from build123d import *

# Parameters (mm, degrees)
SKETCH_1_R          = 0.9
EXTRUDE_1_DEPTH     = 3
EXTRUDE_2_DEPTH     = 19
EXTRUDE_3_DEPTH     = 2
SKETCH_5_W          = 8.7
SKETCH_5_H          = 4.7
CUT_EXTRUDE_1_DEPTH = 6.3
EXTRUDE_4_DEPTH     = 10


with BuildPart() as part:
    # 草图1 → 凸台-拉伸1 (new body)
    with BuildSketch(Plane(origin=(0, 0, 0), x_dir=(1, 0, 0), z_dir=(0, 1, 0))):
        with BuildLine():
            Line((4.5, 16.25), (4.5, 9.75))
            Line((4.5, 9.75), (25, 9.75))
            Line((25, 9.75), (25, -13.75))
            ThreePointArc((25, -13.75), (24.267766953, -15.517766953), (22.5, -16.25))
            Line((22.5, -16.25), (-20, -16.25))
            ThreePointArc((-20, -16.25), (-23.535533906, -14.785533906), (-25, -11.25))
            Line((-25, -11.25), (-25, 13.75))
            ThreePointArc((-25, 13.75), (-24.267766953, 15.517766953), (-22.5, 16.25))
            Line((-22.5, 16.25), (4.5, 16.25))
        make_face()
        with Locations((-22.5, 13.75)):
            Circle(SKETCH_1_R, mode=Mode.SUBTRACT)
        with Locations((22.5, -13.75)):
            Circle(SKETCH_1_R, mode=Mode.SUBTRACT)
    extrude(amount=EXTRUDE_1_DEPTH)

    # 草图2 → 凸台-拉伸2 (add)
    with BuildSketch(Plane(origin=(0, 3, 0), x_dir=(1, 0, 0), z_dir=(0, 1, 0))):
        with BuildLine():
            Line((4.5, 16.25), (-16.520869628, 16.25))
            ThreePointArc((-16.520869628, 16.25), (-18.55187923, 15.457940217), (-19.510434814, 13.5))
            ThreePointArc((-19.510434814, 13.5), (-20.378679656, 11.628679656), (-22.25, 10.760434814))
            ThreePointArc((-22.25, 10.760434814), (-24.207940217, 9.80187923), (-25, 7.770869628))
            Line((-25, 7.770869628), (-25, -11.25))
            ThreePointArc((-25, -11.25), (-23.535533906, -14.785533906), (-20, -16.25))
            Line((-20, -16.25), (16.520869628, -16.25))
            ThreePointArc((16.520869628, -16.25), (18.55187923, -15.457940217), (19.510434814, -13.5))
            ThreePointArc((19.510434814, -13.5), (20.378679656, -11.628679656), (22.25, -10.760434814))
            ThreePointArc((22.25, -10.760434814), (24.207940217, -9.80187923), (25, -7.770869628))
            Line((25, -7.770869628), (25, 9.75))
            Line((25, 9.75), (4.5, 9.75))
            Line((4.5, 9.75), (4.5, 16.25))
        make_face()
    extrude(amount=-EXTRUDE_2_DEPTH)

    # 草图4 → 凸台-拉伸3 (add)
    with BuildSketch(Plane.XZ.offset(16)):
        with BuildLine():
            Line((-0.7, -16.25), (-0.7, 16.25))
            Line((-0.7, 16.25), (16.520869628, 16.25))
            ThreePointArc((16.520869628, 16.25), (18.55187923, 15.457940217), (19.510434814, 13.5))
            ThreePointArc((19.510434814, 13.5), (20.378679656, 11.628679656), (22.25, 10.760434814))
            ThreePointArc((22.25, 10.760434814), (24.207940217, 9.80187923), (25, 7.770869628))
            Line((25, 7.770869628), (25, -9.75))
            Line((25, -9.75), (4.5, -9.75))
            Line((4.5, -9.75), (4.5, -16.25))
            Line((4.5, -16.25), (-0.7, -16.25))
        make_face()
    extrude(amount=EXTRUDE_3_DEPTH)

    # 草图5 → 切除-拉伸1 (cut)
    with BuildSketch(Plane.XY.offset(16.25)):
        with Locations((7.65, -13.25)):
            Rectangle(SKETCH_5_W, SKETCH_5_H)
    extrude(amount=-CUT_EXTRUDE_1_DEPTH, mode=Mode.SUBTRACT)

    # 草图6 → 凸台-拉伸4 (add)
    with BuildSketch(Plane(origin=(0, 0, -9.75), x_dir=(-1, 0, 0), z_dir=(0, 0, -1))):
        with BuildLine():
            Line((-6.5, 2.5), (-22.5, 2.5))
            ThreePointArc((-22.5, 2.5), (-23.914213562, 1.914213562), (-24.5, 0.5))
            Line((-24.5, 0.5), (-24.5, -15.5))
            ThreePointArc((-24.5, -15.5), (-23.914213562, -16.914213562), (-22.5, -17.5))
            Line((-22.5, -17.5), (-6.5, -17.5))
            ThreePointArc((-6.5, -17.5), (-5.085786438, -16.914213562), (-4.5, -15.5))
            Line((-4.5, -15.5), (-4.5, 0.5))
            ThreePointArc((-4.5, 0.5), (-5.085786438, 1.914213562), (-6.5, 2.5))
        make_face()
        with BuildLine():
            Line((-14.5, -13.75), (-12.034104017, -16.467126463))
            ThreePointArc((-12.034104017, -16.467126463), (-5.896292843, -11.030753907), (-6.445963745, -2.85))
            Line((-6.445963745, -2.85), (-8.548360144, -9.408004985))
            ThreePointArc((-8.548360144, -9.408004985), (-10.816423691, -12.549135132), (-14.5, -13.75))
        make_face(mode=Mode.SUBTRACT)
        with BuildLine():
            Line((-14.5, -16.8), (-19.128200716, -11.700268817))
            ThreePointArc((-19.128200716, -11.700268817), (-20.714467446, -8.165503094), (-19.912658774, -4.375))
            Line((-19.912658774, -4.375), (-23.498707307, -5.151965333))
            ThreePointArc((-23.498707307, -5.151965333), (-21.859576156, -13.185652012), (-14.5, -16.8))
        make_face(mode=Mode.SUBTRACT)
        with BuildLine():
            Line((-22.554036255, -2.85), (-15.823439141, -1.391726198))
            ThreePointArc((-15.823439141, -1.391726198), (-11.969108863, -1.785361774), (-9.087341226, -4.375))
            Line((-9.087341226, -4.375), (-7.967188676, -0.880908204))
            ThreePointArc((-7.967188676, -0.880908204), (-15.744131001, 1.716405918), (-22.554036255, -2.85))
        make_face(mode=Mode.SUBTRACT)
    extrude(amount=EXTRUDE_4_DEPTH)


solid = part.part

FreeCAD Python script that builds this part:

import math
import FreeCAD as App
import Part
import Sketcher
from FreeCAD import Vector
Q = App.Units.Quantity


def add_polygon(sketch, points):
    """Adds a closed chain of lines whose ends are joined by coincident constraints."""
    first, n = sketch.GeometryCount, len(points)
    for a, b in zip(points, points[1:] + points[:1]):
        sketch.addGeometry(Part.LineSegment(App.Vector(*a, 0), App.Vector(*b, 0)), False)
    for i in range(n):
        sketch.addConstraint(Sketcher.Constraint("Coincident", first + i, 2, first + (i + 1) % n, 1))

doc = App.newDocument("Part")
body = doc.addObject("PartDesign::Body", "Body")

sketch1 = doc.addObject("Sketcher::SketchObject", "Sketch")
body.addObject(sketch1)
sketch1.AttachmentSupport = (doc.XZ_Plane, [""])
sketch1.MapMode = "FlatFace"
sketch1.addGeometry([
    Part.LineSegment(Vector(4.5, -9.8, 0), Vector(4.5, -16.2, 0)),
    Part.LineSegment(Vector(4.5, -16.2, 0), Vector(-22.5, -16.2, 0)),
    Part.ArcOfCircle(Part.Circle(Vector(-22.5, -13.8, 0), Vector(0, 0, 1), 2.5), math.radians(180), math.radians(270)),
    Part.LineSegment(Vector(-25, -13.8, 0), Vector(-25, 11.2, 0)),
    Part.ArcOfCircle(Part.Circle(Vector(-20, 11.2, 0), Vector(0, 0, 1), 5), math.radians(90), math.radians(180)),
    Part.LineSegment(Vector(-20, 16.2, 0), Vector(22.5, 16.2, 0)),
    Part.ArcOfCircle(Part.Circle(Vector(22.5, 13.8, 0), Vector(0, 0, 1), 2.5), math.radians(0), math.radians(90)),
    Part.LineSegment(Vector(25, 13.8, 0), Vector(25, -9.8, 0)),
    Part.LineSegment(Vector(25, -9.8, 0), Vector(4.5, -9.8, 0)),
    Part.Circle(Vector(22.5, 13.8, 0), Vector(0, 0, 1), 0.9),
    Part.Circle(Vector(-22.5, -13.8, 0), Vector(0, 0, 1), 0.9),
], False)
sketch1.addConstraint([
    Sketcher.Constraint("Coincident", 0, 2, 1, 1),
    Sketcher.Constraint("Tangent", 1, 2, 2, 2),
    Sketcher.Constraint("Tangent", 2, 1, 3, 1),
    Sketcher.Constraint("Tangent", 3, 2, 4, 2),
    Sketcher.Constraint("Tangent", 4, 1, 5, 1),
    Sketcher.Constraint("Tangent", 5, 2, 6, 2),
    Sketcher.Constraint("Tangent", 6, 1, 7, 1),
    Sketcher.Constraint("Coincident", 7, 2, 8, 1),
    Sketcher.Constraint("Coincident", 8, 2, 0, 1),
    Sketcher.Constraint("Vertical", 0),
    Sketcher.Constraint("Horizontal", 1),
    Sketcher.Constraint("Vertical", 3),
    Sketcher.Constraint("Horizontal", 5),
    Sketcher.Constraint("Vertical", 7),
    Sketcher.Constraint("Horizontal", 8),
    Sketcher.Constraint("Coincident", 9, 3, 6, 3),
    Sketcher.Constraint("Coincident", 10, 3, 2, 3),
    Sketcher.Constraint("Equal", 2, 6),
    Sketcher.Constraint("Equal", 9, 10),
    Sketcher.Constraint("Symmetric", 2, 3, 6, 3, -1, 1),
    Sketcher.Constraint("Radius", 4, Q("5 mm")),
    Sketcher.Constraint("Diameter", 9, Q("1.8 mm")),
    Sketcher.Constraint("Radius", 2, Q("2.5 mm")),
    Sketcher.Constraint("DistanceX", 1, 2, 1, 1, Q("27 mm")),
    Sketcher.Constraint("DistanceY", 3, 1, 3, 2, Q("25 mm")),
    Sketcher.Constraint("DistanceX", 5, 1, 5, 2, Q("42.5 mm")),
    Sketcher.Constraint("DistanceY", 0, 2, 0, 1, Q("6.5 mm")),
])
pad1 = doc.addObject("PartDesign::Pad", "Pad")
body.addObject(pad1)
pad1.Profile = sketch1
pad1.Length = 3
pad1.Reversed = True

sketch2 = doc.addObject("Sketcher::SketchObject", "Sketch001")
body.addObject(sketch2)
sketch2.AttachmentSupport = (doc.XZ_Plane, [""])
sketch2.MapMode = "FlatFace"
sketch2.AttachmentOffset = App.Placement(Vector(0, 0, -3), App.Rotation())
sketch2.addGeometry([
    Part.LineSegment(Vector(4.5, -16.2, 0), Vector(-16.5, -16.2, 0)),
    Part.ArcOfCircle(Part.Circle(Vector(-16.5, -13.3, 0), Vector(0, 0, 1), 3), math.radians(-175), math.radians(-90)),
    Part.ArcOfCircle(Part.Circle(Vector(-22.5, -13.7, 0), Vector(0, 0, 1), 3), math.radians(5), math.radians(85)),
    Part.ArcOfCircle(Part.Circle(Vector(-22, -7.8, 0), Vector(0, 0, 1), 3), math.radians(180), math.radians(265)),
    Part.LineSegment(Vector(-25, -7.8, 0), Vector(-25, 11.2, 0)),
    Part.ArcOfCircle(Part.Circle(Vector(-20, 11.2, 0), Vector(0, 0, 1), 5), math.radians(90), math.radians(180)),
    Part.LineSegment(Vector(-20, 16.2, 0), Vector(16.5, 16.2, 0)),
    Part.ArcOfCircle(Part.Circle(Vector(16.5, 13.3, 0), Vector(0, 0, 1), 3), math.radians(5), math.radians(90)),
    Part.ArcOfCircle(Part.Circle(Vector(22.5, 13.7, 0), Vector(0, 0, 1), 3), math.radians(-175), math.radians(-95)),
    Part.ArcOfCircle(Part.Circle(Vector(22, 7.8, 0), Vector(0, 0, 1), 3), math.radians(0), math.radians(85)),
    Part.LineSegment(Vector(25, 7.8, 0), Vector(25, -9.8, 0)),
    Part.LineSegment(Vector(25, -9.8, 0), Vector(4.5, -9.8, 0)),
    Part.LineSegment(Vector(4.5, -9.8, 0), Vector(4.5, -16.2, 0)),
], False)
sketch2.addConstraint([
    Sketcher.Constraint("Tangent", 0, 2, 1, 2),
    Sketcher.Constraint("Tangent", 1, 1, 2, 1),
    Sketcher.Constraint("Tangent", 2, 2, 3, 2),
    Sketcher.Constraint("Tangent", 3, 1, 4, 1),
    Sketcher.Constraint("Tangent", 4, 2, 5, 2),
    Sketcher.Constraint("Tangent", 5, 1, 6, 1),
    Sketcher.Constraint("Tangent", 6, 2, 7, 2),
    Sketcher.Constraint("Tangent", 7, 1, 8, 1),
    Sketcher.Constraint("Tangent", 8, 2, 9, 2),
    Sketcher.Constraint("Tangent", 9, 1, 10, 1),
    Sketcher.Constraint("Coincident", 10, 2, 11, 1),
    Sketcher.Constraint("Coincident", 11, 2, 12, 1),
    Sketcher.Constraint("Coincident", 12, 2, 0, 1),
    Sketcher.Constraint("Horizontal", 0),
    Sketcher.Constraint("Vertical", 4),
    Sketcher.Constraint("Horizontal", 6),
    Sketcher.Constraint("Vertical", 10),
    Sketcher.Constraint("Horizontal", 11),
    Sketcher.Constraint("Vertical", 12),
    Sketcher.Constraint("Equal", 1, 2),
    Sketcher.Constraint("Equal", 2, 3),
    Sketcher.Constraint("Equal", 3, 7),
    Sketcher.Constraint("Equal", 7, 8),
    Sketcher.Constraint("Equal", 8, 9),
    Sketcher.Constraint("Symmetric", 1, 3, 7, 3, -1, 1),
    Sketcher.Constraint("Symmetric", 3, 3, 9, 3, -1, 1),
    Sketcher.Constraint("Radius", 1, Q("3 mm")),
    Sketcher.Constraint("Radius", 5, Q("5 mm")),
    Sketcher.Constraint("DistanceX", 11, 2, 11, 1, Q("20.5 mm")),
    Sketcher.Constraint("DistanceY", 12, 2, 12, 1, Q("6.5 mm")),
    Sketcher.Constraint("DistanceX", 3, 3, -1, 1, Q("22 mm")),
    Sketcher.Constraint("DistanceY", 2, 3, 5, 3, Q("25 mm")),
    Sketcher.Constraint("DistanceX", 2, 3, 8, 3, Q("45 mm")),
    Sketcher.Constraint("DistanceY", 2, 3, 1, 3, Q("0.5 mm")),
])
pad2 = doc.addObject("PartDesign::Pad", "Pad001")
body.addObject(pad2)
pad2.Profile = sketch2
pad2.Length = 19

sketch3 = doc.addObject("Sketcher::SketchObject", "Sketch002")
body.addObject(sketch3)
sketch3.AttachmentSupport = (doc.XZ_Plane, [""])
sketch3.MapMode = "FlatFace"
sketch3.AttachmentOffset = App.Placement(Vector(0, 0, 16), App.Rotation())
sketch3.addGeometry([
    Part.LineSegment(Vector(-0.7, 16.2, 0), Vector(-0.7, -16.2, 0)),
    Part.LineSegment(Vector(-0.7, -16.2, 0), Vector(4.5, -16.2, 0)),
    Part.LineSegment(Vector(4.5, -16.2, 0), Vector(4.5, -9.8, 0)),
    Part.LineSegment(Vector(4.5, -9.8, 0), Vector(25, -9.8, 0)),
    Part.LineSegment(Vector(25, -9.8, 0), Vector(25, 7.8, 0)),
    Part.ArcOfCircle(Part.Circle(Vector(22, 7.8, 0), Vector(0, 0, 1), 3), math.radians(0), math.radians(85)),
    Part.ArcOfCircle(Part.Circle(Vector(22.5, 13.7, 0), Vector(0, 0, 1), 3), math.radians(-175), math.radians(-95)),
    Part.ArcOfCircle(Part.Circle(Vector(16.5, 13.3, 0), Vector(0, 0, 1), 3), math.radians(5), math.radians(90)),
    Part.LineSegment(Vector(16.5, 16.2, 0), Vector(-0.7, 16.2, 0)),
], False)
sketch3.addConstraint([
    Sketcher.Constraint("Coincident", 0, 2, 1, 1),
    Sketcher.Constraint("Coincident", 1, 2, 2, 1),
    Sketcher.Constraint("Coincident", 2, 2, 3, 1),
    Sketcher.Constraint("Coincident", 3, 2, 4, 1),
    Sketcher.Constraint("Tangent", 4, 2, 5, 1),
    Sketcher.Constraint("Tangent", 5, 2, 6, 2),
    Sketcher.Constraint("Tangent", 6, 1, 7, 1),
    Sketcher.Constraint("Tangent", 7, 2, 8, 1),
    Sketcher.Constraint("Coincident", 8, 2, 0, 1),
    Sketcher.Constraint("Vertical", 0),
    Sketcher.Constraint("Horizontal", 1),
    Sketcher.Constraint("Vertical", 2),
    Sketcher.Constraint("Horizontal", 3),
    Sketcher.Constraint("Vertical", 4),
    Sketcher.Constraint("Horizontal", 8),
    Sketcher.Constraint("Equal", 5, 6),
    Sketcher.Constraint("Equal", 6, 7),
    Sketcher.Constraint("Radius", 5, Q("3 mm")),
    Sketcher.Constraint("DistanceX", 1, 1, 1, 2, Q("5.2 mm")),
    Sketcher.Constraint("DistanceX", 3, 1, 3, 2, Q("20.5 mm")),
    Sketcher.Constraint("DistanceY", 0, 2, 0, 1, Q("32.5 mm")),
    Sketcher.Constraint("DistanceY", 2, 1, 2, 2, Q("6.5 mm")),
    Sketcher.Constraint("DistanceX", -1, 1, 5, 3, Q("22 mm")),
    Sketcher.Constraint("DistanceY", 0, 2, 6, 3, Q("30 mm")),
    Sketcher.Constraint("DistanceX", 1, 2, 6, 3, Q("18 mm")),
    Sketcher.Constraint("DistanceY", -1, 1, 6, 1, Q("13.5 mm")),
])
pad3 = doc.addObject("PartDesign::Pad", "Pad002")
body.addObject(pad3)
pad3.Profile = sketch3
pad3.Length = 2

sketch4 = doc.addObject("Sketcher::SketchObject", "Sketch003")
body.addObject(sketch4)
sketch4.AttachmentSupport = (doc.XY_Plane, [""])
sketch4.MapMode = "FlatFace"
sketch4.AttachmentOffset = App.Placement(Vector(0, 0, 16.25), App.Rotation())
add_polygon(sketch4, [(3.3, -10.9), (3.3, -15.6), (12, -15.6), (12, -10.9)])
sketch4.addConstraint([
    Sketcher.Constraint("Vertical", 0),
    Sketcher.Constraint("Horizontal", 1),
    Sketcher.Constraint("Vertical", 2),
    Sketcher.Constraint("Horizontal", 3),
    Sketcher.Constraint("DistanceX", 1, 1, 1, 2, Q("8.7 mm")),
    Sketcher.Constraint("DistanceY", 0, 2, 0, 1, Q("4.7 mm")),
    Sketcher.Constraint("DistanceX", -1, 1, 1, 2, Q("12 mm")),
    Sketcher.Constraint("DistanceY", 0, 2, -1, 1, Q("15.6 mm")),
])
pocket1 = doc.addObject("PartDesign::Pocket", "Pocket")
body.addObject(pocket1)
pocket1.Profile = sketch4
pocket1.Length = 6.3

sketch5 = doc.addObject("Sketcher::SketchObject", "Sketch004")
body.addObject(sketch5)
sketch5.AttachmentSupport = (doc.XY_Plane, [""])
sketch5.MapMode = "FlatFace"
sketch5.AttachmentOffset = App.Placement(Vector(0, 0, -9.75), App.Rotation())
sketch5.addGeometry([
    Part.LineSegment(Vector(6.5, 2.5, 0), Vector(22.5, 2.5, 0)),
    Part.ArcOfCircle(Part.Circle(Vector(22.5, 0.5, 0), Vector(0, 0, 1), 2), math.radians(0), math.radians(90)),
    Part.LineSegment(Vector(24.5, 0.5, 0), Vector(24.5, -15.5, 0)),
    Part.ArcOfCircle(Part.Circle(Vector(22.5, -15.5, 0), Vector(0, 0, 1), 2), math.radians(-90), math.radians(0)),
    Part.LineSegment(Vector(22.5, -17.5, 0), Vector(6.5, -17.5, 0)),
    Part.ArcOfCircle(Part.Circle(Vector(6.5, -15.5, 0), Vector(0, 0, 1), 2), math.radians(-180), math.radians(-90)),
    Part.LineSegment(Vector(4.5, -15.5, 0), Vector(4.5, 0.5, 0)),
    Part.ArcOfCircle(Part.Circle(Vector(6.5, 0.5, 0), Vector(0, 0, 1), 2), math.radians(90), math.radians(180)),
    Part.LineSegment(Vector(19.1, -11.7, 0), Vector(14.5, -16.8, 0)),
    Part.ArcOfCircle(Part.Circle(Vector(14.5, -7.5, 0), Vector(0, 0, 1), 9.3), math.radians(-90), math.radians(15)),
    Part.LineSegment(Vector(23.5, -5.2, 0), Vector(19.9, -4.4, 0)),
    Part.ArcOfCircle(Part.Circle(Vector(14.5, -7.5, 0), Vector(0, 0, 1), 6.2), math.radians(-42), math.radians(30)),
    Part.LineSegment(Vector(12, -16.5, 0), Vector(14.5, -13.8, 0)),
    Part.ArcOfCircle(Part.Circle(Vector(14.5, -7.5, 0), Vector(0, 0, 1), 6.2), math.radians(-162), math.radians(-90)),
    Part.LineSegment(Vector(8.5, -9.4, 0), Vector(6.4, -2.9, 0)),
    Part.ArcOfCircle(Part.Circle(Vector(14.5, -7.5, 0), Vector(0, 0, 1), 9.3), math.radians(150), math.radians(255)),
    Part.LineSegment(Vector(15.8, -1.4, 0), Vector(22.6, -2.9, 0)),
    Part.ArcOfCircle(Part.Circle(Vector(14.5, -7.5, 0), Vector(0, 0, 1), 9.3), math.radians(30), math.radians(135)),
    Part.LineSegment(Vector(8, -0.9, 0), Vector(9.1, -4.4, 0)),
    Part.ArcOfCircle(Part.Circle(Vector(14.5, -7.5, 0), Vector(0, 0, 1), 6.2), math.radians(78), math.radians(150)),
], False)
sketch5.addConstraint([
    Sketcher.Constraint("Tangent", 0, 2, 1, 2),
    Sketcher.Constraint("Tangent", 1, 1, 2, 1),
    Sketcher.Constraint("Tangent", 2, 2, 3, 2),
    Sketcher.Constraint("Tangent", 3, 1, 4, 1),
    Sketcher.Constraint("Tangent", 4, 2, 5, 2),
    Sketcher.Constraint("Tangent", 5, 1, 6, 1),
    Sketcher.Constraint("Tangent", 6, 2, 7, 2),
    Sketcher.Constraint("Tangent", 7, 1, 0, 1),
    Sketcher.Constraint("Coincident", 8, 2, 9, 1),
    Sketcher.Constraint("Coincident", 9, 2, 10, 1),
    Sketcher.Constraint("Coincident", 10, 2, 11, 2),
    Sketcher.Constraint("Tangent", 11, 1, 8, 1),
    Sketcher.Constraint("Coincident", 12, 2, 13, 2),
    Sketcher.Constraint("Tangent", 13, 1, 14, 1),
    Sketcher.Constraint("Coincident", 14, 2, 15, 1),
    Sketcher.Constraint("Coincident", 15, 2, 12, 1),
    Sketcher.Constraint("Coincident", 16, 2, 17, 1),
    Sketcher.Constraint("Coincident", 17, 2, 18, 1),
    Sketcher.Constraint("Coincident", 18, 2, 19, 2),
    Sketcher.Constraint("Tangent", 19, 1, 16, 1),
    Sketcher.Constraint("Horizontal", 0),
    Sketcher.Constraint("Vertical", 2),
    Sketcher.Constraint("Horizontal", 4),
    Sketcher.Constraint("Vertical", 6),
    Sketcher.Constraint("Coincident", 11, 3, 9, 3),
    Sketcher.Constraint("Coincident", 13, 3, 9, 3),
    Sketcher.Constraint("Coincident", 15, 3, 9, 3),
    Sketcher.Constraint("Coincident", 17, 3, 9, 3),
    Sketcher.Constraint("Coincident", 19, 3, 9, 3),
    Sketcher.Constraint("Equal", 1, 3),
    Sketcher.Constraint("Equal", 3, 5),
    Sketcher.Constraint("Equal", 5, 7),
    Sketcher.Constraint("Equal", 11, 13),
    Sketcher.Constraint("Equal", 9, 15),
    Sketcher.Constraint("Equal", 15, 17),
    Sketcher.Constraint("Equal", 13, 19),
    Sketcher.Constraint("Parallel", 8, 12),
    Sketcher.Constraint("Parallel", 10, 16),
    Sketcher.Constraint("Parallel", 14, 18),
    Sketcher.Constraint("Horizontal", 14, 2, 16, 2),
    Sketcher.Constraint("Horizontal", 10, 2, 18, 2),
    Sketcher.Constraint("Vertical", 19, 3, 8, 2),
    Sketcher.Constraint("Vertical", 8, 2, 12, 2),
    Sketcher.Constraint("Equal", 4, 2),
    Sketcher.Constraint("Equal", 10, 12),
    Sketcher.Constraint("Radius", 1, Q("2 mm")),
    Sketcher.Constraint("Radius", 9, Q("9.3 mm")),
    Sketcher.Constraint("DistanceX", 0, 1, 0, 2, Q("16 mm")),
    Sketcher.Constraint("Radius", 11, Q("6.25 mm")),
    Sketcher.Constraint("DistanceX", 9, 3, 1, 3, Q("8 mm")),
    Sketcher.Constraint("DistanceY", 9, 3, 1, 3, Q("8 mm")),
    Sketcher.Constraint("DistanceX", -1, 1, 1, 3, Q("22.5 mm")),
    Sketcher.Constraint("DistanceY", -1, 1, 1, 3, Q("0.5 mm")),
    Sketcher.Constraint("DistanceY", 14, 2, -1, 1, Q("2.85 mm")),
])
pad4 = doc.addObject("PartDesign::Pad", "Pad003")
body.addObject(pad4)
pad4.Profile = sketch5
pad4.Length = 10
pad4.Reversed = True

doc.recompute()
